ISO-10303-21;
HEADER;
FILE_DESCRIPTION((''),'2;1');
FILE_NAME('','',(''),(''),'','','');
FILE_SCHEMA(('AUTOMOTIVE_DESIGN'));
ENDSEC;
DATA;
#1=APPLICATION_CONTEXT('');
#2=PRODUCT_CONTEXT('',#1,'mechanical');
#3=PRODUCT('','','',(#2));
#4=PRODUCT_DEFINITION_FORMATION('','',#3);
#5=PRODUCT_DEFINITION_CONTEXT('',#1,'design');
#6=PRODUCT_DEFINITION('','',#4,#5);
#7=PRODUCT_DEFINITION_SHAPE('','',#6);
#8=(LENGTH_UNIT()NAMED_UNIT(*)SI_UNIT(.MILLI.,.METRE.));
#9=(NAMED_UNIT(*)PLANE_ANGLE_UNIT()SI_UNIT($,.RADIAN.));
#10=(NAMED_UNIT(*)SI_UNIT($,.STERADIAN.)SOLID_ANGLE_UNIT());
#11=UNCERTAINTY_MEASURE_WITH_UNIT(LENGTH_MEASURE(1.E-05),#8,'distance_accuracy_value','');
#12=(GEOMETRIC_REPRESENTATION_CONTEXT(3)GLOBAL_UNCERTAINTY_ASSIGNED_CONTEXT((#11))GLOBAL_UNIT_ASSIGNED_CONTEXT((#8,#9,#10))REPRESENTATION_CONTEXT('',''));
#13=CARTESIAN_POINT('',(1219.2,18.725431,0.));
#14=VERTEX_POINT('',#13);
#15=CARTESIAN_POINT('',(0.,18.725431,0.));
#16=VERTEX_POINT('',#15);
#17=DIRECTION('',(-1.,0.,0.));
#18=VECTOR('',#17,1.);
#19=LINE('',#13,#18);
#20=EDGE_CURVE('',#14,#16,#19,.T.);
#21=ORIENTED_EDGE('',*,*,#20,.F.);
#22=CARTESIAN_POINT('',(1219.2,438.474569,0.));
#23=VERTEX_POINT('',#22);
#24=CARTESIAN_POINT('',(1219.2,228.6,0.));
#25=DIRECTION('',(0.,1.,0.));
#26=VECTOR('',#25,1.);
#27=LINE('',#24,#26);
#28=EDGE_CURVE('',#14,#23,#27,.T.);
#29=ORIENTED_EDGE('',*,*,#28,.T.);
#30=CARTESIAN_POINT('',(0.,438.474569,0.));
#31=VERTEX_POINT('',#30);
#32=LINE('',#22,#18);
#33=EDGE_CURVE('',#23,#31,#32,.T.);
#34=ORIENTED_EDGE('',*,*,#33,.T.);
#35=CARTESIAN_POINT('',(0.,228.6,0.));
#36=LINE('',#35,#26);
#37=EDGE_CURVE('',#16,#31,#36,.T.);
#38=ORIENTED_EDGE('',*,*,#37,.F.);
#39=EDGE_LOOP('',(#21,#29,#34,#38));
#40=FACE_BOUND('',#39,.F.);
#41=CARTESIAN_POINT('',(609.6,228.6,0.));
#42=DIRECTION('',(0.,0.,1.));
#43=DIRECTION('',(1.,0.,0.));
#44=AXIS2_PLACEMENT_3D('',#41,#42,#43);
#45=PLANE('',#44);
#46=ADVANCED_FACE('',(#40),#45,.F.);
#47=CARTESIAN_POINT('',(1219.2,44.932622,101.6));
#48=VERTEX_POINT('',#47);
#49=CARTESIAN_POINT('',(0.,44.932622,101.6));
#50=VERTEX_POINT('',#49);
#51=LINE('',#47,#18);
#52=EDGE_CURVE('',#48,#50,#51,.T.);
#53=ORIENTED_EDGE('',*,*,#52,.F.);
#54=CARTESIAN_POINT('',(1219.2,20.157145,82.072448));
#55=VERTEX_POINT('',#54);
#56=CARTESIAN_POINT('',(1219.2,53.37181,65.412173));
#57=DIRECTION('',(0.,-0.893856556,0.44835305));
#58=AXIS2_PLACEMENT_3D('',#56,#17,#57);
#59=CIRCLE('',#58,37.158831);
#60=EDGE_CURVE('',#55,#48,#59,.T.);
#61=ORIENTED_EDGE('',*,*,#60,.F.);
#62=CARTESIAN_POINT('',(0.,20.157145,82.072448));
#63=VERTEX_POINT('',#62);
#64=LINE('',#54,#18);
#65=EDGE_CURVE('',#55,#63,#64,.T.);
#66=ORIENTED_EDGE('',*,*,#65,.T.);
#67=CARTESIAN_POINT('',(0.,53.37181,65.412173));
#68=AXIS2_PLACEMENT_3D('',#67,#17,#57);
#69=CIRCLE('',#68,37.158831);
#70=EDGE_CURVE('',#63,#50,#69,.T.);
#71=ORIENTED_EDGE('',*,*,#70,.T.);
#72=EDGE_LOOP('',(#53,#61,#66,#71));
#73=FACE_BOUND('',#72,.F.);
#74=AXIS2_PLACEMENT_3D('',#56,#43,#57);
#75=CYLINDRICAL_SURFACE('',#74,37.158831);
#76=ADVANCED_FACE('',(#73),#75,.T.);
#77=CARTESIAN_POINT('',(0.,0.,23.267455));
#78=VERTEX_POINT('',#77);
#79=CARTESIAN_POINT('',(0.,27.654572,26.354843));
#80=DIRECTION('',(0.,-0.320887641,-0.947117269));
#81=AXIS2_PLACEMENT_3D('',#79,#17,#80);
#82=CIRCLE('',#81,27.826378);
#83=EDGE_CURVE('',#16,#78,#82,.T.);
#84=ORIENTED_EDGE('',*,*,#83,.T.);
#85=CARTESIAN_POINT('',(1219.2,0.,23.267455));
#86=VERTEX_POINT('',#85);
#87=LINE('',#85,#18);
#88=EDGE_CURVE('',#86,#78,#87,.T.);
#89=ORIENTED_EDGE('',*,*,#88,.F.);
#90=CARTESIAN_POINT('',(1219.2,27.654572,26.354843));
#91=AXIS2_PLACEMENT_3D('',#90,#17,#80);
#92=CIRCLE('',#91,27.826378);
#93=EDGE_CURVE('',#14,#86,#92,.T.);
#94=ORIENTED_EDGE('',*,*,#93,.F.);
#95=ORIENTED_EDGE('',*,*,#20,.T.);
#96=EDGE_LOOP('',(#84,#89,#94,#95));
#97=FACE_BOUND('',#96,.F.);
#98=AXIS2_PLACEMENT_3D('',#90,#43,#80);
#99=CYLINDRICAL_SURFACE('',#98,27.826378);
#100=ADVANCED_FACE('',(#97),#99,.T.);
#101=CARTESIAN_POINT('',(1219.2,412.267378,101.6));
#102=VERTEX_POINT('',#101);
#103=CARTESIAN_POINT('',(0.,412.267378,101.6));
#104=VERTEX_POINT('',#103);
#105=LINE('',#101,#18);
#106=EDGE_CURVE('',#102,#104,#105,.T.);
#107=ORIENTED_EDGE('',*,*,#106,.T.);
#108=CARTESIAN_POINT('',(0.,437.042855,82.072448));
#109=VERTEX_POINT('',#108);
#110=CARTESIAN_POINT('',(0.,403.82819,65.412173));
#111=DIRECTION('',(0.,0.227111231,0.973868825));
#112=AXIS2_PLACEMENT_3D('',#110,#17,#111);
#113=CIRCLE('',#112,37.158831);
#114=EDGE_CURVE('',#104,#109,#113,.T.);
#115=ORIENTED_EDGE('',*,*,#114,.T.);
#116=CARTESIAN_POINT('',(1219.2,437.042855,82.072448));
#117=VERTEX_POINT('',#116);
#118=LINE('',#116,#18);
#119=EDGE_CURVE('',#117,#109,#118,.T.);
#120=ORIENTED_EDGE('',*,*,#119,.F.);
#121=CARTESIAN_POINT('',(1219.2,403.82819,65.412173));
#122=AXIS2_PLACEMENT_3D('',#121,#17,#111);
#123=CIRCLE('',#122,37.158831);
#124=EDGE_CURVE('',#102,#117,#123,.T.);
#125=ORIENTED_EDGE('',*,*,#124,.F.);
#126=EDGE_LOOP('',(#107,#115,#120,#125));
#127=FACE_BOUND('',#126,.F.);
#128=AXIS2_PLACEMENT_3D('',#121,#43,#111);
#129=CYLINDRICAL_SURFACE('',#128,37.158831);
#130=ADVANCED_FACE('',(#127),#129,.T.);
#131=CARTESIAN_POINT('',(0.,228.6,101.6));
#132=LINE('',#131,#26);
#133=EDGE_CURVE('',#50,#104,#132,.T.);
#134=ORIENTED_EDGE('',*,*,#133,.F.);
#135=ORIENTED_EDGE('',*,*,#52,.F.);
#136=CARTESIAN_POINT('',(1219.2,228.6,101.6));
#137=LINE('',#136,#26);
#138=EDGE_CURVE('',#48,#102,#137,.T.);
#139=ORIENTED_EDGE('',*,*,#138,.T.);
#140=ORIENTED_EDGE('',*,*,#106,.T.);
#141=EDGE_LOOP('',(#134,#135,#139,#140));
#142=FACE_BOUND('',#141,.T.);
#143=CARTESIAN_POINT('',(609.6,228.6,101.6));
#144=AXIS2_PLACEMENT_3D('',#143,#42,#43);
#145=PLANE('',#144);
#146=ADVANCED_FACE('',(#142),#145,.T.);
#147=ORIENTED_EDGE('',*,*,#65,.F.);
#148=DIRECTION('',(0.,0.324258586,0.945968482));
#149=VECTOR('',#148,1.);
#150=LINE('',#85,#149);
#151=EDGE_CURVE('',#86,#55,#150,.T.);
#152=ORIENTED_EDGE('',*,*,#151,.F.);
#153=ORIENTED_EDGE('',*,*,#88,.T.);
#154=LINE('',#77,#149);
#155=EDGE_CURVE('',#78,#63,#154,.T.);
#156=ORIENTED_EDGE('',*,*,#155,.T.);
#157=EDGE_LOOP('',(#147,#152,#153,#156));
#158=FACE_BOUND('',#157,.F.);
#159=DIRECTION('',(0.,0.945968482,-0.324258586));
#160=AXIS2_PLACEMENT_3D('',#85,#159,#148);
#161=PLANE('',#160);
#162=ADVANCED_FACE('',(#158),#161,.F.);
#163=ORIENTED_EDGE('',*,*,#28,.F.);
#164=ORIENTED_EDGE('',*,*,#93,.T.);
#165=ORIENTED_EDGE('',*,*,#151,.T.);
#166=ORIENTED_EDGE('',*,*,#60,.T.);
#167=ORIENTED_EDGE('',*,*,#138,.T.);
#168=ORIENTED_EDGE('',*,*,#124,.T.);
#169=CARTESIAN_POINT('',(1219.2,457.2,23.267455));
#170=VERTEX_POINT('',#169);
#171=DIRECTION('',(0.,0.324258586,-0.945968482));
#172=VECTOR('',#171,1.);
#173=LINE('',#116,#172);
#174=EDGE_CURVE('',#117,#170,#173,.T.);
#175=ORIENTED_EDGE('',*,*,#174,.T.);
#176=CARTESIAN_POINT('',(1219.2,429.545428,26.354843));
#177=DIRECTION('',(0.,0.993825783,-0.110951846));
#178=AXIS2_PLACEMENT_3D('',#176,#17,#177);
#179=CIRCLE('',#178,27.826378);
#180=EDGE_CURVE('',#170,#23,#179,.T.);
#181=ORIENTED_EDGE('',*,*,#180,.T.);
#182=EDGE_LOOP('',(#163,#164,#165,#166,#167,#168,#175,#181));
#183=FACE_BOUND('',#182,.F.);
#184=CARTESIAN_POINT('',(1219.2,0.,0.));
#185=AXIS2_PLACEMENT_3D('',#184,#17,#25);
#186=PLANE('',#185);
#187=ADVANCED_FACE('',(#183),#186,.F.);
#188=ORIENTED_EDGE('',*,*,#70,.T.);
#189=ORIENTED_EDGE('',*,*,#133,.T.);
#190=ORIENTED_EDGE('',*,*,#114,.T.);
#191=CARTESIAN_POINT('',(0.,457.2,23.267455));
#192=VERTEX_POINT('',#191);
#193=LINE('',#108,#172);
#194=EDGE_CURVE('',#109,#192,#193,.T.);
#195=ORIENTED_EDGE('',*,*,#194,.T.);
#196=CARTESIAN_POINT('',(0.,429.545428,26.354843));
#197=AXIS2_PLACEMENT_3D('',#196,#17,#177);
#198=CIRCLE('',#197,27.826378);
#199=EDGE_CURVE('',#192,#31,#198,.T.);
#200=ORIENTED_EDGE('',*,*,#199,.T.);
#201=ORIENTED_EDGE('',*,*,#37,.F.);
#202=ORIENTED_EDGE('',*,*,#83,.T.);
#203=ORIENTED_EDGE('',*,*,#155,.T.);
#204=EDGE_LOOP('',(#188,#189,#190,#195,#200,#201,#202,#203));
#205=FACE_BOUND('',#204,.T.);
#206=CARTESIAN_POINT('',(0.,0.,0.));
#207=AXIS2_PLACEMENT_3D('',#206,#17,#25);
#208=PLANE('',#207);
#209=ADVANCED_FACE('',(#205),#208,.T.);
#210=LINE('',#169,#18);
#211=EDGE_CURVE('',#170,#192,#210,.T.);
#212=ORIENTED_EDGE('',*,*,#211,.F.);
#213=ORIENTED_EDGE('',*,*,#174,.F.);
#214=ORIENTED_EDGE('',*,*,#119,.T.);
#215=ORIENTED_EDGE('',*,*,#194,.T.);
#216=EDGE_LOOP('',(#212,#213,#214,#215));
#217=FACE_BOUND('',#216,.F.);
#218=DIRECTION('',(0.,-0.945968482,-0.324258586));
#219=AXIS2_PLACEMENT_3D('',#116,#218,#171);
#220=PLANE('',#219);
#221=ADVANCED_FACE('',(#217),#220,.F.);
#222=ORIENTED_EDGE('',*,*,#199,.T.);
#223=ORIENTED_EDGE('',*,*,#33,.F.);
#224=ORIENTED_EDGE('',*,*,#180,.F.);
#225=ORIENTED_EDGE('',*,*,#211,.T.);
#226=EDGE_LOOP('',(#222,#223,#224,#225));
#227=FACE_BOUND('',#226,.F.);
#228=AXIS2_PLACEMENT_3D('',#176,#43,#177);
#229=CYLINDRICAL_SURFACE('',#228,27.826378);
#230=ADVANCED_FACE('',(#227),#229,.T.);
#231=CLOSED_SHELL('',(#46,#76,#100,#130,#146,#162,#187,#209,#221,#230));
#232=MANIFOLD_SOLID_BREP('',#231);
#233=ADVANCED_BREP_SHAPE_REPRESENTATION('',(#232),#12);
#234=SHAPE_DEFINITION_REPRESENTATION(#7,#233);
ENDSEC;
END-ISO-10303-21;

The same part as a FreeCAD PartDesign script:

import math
import FreeCAD as App
import Part
import Sketcher

V = App.Vector
Q = App.Units.Quantity


def add_polygon(sketch, points):
    """Adds a closed chain of lines whose ends are joined by coincident constraints."""
    first, n = sketch.GeometryCount, len(points)
    for a, b in zip(points, points[1:] + points[:1]):
        sketch.addGeometry(Part.LineSegment(App.Vector(*a, 0), App.Vector(*b, 0)), False)
    for i in range(n):
        sketch.addConstraint(Sketcher.Constraint("Coincident", first + i, 2, first + (i + 1) % n, 1))

doc = App.newDocument("Part")
body = doc.addObject("PartDesign::Body", "Body")

# Sketch on XY plane
sketch1 = body.newObject("Sketcher::SketchObject", "Sketch")
sketch1.AttachmentSupport = (doc.getObject("XY_Plane"), [""])
sketch1.MapMode = "FlatFace"
add_polygon(sketch1, [(0, 457.2), (0, 0), (1219.2, 0), (1219.2, 457.2)])  # lines 0-3
sketch1.addConstraint(Sketcher.Constraint("Vertical", 0))
sketch1.addConstraint(Sketcher.Constraint("Horizontal", 1))
sketch1.addConstraint(Sketcher.Constraint("Vertical", 2))
sketch1.addConstraint(Sketcher.Constraint("Horizontal", 3))
sketch1.addConstraint(Sketcher.Constraint("Coincident", 0, 2, -1, 1))
sketch1.addConstraint(Sketcher.Constraint("DistanceX", 1, 1, 1, 2, Q("48 in")))
sketch1.addConstraint(Sketcher.Constraint("DistanceY", 0, 2, 0, 1, Q("18 in")))
pad1 = body.newObject("PartDesign::Pad", "Pad")
pad1.Profile = sketch1
pad1.Length = Q("4 in")

# Sketch on YZ plane
sketch2 = body.newObject("Sketcher::SketchObject", "Sketch001")
sketch2.AttachmentSupport = (doc.getObject("YZ_Plane"), [""])
sketch2.MapMode = "FlatFace"
sketch2.AttachmentOffset = App.Placement(V(0, 0, 48 * 25.4), App.Rotation())
sketch2.addGeometry(Part.LineSegment(V(0, 101.6, 0), V(0, 23.267455, 0)), False)
sketch2.addGeometry(Part.LineSegment(V(0, 23.267455, 0), V(20.157145, 82.072448, 0)), False)
sketch2.addGeometry(Part.ArcOfCircle(Part.Circle(V(53.37181, 65.412173, 0), V(0, 0, 1), 37.158831), math.radians(103.127057), math.radians(153.361934)), False)
sketch2.addGeometry(Part.LineSegment(V(44.932622, 101.6, 0), V(0, 101.6, 0)), False)
sketch2.addGeometry(Part.ArcOfCircle(Part.Circle(V(27.654572, 26.354843, 0), V(0, 0, 1), 27.826378), math.radians(-173.629812), math.radians(-108.716614)), False)
sketch2.addGeometry(Part.LineSegment(V(0, 23.267455, 0), V(0, 0, 0)), False)
sketch2.addGeometry(Part.LineSegment(V(0, 0, 0), V(18.725431, 0, 0)), False)
sketch2.addGeometry(Part.ArcOfCircle(Part.Circle(V(403.82819, 65.412173, 0), V(0, 0, 1), 37.158831), math.radians(26.638066), math.radians(76.872943)), False)
sketch2.addGeometry(Part.LineSegment(V(437.042855, 82.072448, 0), V(457.2, 23.267455, 0)), False)
sketch2.addGeometry(Part.LineSegment(V(457.2, 23.267455, 0), V(457.2, 101.6, 0)), False)
sketch2.addGeometry(Part.LineSegment(V(457.2, 101.6, 0), V(412.267378, 101.6, 0)), False)
sketch2.addGeometry(Part.LineSegment(V(457.2, 0, 0), V(457.2, 23.267455, 0)), False)
sketch2.addGeometry(Part.ArcOfCircle(Part.Circle(V(429.545428, 26.354843, 0), V(0, 0, 1), 27.826378), math.radians(-71.283386), math.radians(-6.370188)), False)
sketch2.addGeometry(Part.LineSegment(V(438.474569, 0, 0), V(457.2, 0, 0)), False)
sketch2.addConstraint(Sketcher.Constraint("Coincident", 0, 2, 1, 1))
sketch2.addConstraint(Sketcher.Constraint("Coincident", 1, 2, 2, 2))
sketch2.addConstraint(Sketcher.Constraint("Coincident", 2, 1, 3, 1))
sketch2.addConstraint(Sketcher.Constraint("Coincident", 3, 2, 0, 1))
sketch2.addConstraint(Sketcher.Constraint("Coincident", 4, 1, 5, 1))
sketch2.addConstraint(Sketcher.Constraint("Coincident", 5, 2, 6, 1))
sketch2.addConstraint(Sketcher.Constraint("Coincident", 6, 2, 4, 2))
sketch2.addConstraint(Sketcher.Constraint("Coincident", 7, 1, 8, 1))
sketch2.addConstraint(Sketcher.Constraint("Coincident", 8, 2, 9, 1))
sketch2.addConstraint(Sketcher.Constraint("Coincident", 9, 2, 10, 1))
sketch2.addConstraint(Sketcher.Constraint("Coincident", 10, 2, 7, 2))
sketch2.addConstraint(Sketcher.Constraint("Coincident", 11, 2, 12, 2))
sketch2.addConstraint(Sketcher.Constraint("Coincident", 12, 1, 13, 1))
sketch2.addConstraint(Sketcher.Constraint("Coincident", 13, 2, 11, 1))
sketch2.addConstraint(Sketcher.Constraint("Vertical", 0))
sketch2.addConstraint(Sketcher.Constraint("Horizontal", 3))
sketch2.addConstraint(Sketcher.Constraint("Vertical", 5))
sketch2.addConstraint(Sketcher.Constraint("Horizontal", 6))
sketch2.addConstraint(Sketcher.Constraint("Vertical", 9))
sketch2.addConstraint(Sketcher.Constraint("Horizontal", 10))
sketch2.addConstraint(Sketcher.Constraint("Vertical", 11))
sketch2.addConstraint(Sketcher.Constraint("Horizontal", 13))
sketch2.addConstraint(Sketcher.Constraint("Coincident", 5, 2, -1, 1))
sketch2.addConstraint(Sketcher.Constraint("Coincident", 4, 1, 0, 2))
sketch2.addConstraint(Sketcher.Constraint("Coincident", 11, 2, 8, 2))
sketch2.addConstraint(Sketcher.Constraint("Equal", 2, 7))
sketch2.addConstraint(Sketcher.Constraint("Equal", 4, 12))
sketch2.addConstraint(Sketcher.Constraint("PointOnObject", 12, 1, -1))
sketch2.addConstraint(Sketcher.Constraint("Horizontal", 2, 3, 7, 3))
sketch2.addConstraint(Sketcher.Constraint("Horizontal", 4, 3, 12, 3))
sketch2.addConstraint(Sketcher.Constraint("Horizontal", 1, 2, 7, 1))
sketch2.addConstraint(Sketcher.Constraint("Horizontal", 4, 1, 8, 2))
sketch2.addConstraint(Sketcher.Constraint("Horizontal", 3, 2, 9, 2))
sketch2.addConstraint(Sketcher.Constraint("Equal", 3, 10))
sketch2.addConstraint(Sketcher.Constraint("DistanceY", -1, 1, 2, 1, Q("4 in")))
sketch2.addConstraint(Sketcher.Constraint("DistanceX", -1, 1, 8, 2, Q("18 in")))
sketch2.addConstraint(Sketcher.Constraint("Radius", 2, 37.158831))
sketch2.addConstraint(Sketcher.Constraint("Radius", 4, 27.826378))
sketch2.addConstraint(Sketcher.Constraint("DistanceX", 6, 1, 6, 2, 18.725431))
sketch2.addConstraint(Sketcher.Constraint("DistanceX", 10, 2, 10, 1, 44.932622))
sketch2.addConstraint(Sketcher.Constraint("DistanceY", 0, 2, 0, 1, 78.332545))
sketch2.addConstraint(Sketcher.Constraint("DistanceX", -1, 1, 2, 3, 53.37181))
sketch2.addConstraint(Sketcher.Constraint("DistanceY", -1, 1, 7, 1, 82.072448))
pocket1 = body.newObject("PartDesign::Pocket", "Pocket")
pocket1.Profile = sketch2
pocket1.Type = "ThroughAll"

doc.recompute()
